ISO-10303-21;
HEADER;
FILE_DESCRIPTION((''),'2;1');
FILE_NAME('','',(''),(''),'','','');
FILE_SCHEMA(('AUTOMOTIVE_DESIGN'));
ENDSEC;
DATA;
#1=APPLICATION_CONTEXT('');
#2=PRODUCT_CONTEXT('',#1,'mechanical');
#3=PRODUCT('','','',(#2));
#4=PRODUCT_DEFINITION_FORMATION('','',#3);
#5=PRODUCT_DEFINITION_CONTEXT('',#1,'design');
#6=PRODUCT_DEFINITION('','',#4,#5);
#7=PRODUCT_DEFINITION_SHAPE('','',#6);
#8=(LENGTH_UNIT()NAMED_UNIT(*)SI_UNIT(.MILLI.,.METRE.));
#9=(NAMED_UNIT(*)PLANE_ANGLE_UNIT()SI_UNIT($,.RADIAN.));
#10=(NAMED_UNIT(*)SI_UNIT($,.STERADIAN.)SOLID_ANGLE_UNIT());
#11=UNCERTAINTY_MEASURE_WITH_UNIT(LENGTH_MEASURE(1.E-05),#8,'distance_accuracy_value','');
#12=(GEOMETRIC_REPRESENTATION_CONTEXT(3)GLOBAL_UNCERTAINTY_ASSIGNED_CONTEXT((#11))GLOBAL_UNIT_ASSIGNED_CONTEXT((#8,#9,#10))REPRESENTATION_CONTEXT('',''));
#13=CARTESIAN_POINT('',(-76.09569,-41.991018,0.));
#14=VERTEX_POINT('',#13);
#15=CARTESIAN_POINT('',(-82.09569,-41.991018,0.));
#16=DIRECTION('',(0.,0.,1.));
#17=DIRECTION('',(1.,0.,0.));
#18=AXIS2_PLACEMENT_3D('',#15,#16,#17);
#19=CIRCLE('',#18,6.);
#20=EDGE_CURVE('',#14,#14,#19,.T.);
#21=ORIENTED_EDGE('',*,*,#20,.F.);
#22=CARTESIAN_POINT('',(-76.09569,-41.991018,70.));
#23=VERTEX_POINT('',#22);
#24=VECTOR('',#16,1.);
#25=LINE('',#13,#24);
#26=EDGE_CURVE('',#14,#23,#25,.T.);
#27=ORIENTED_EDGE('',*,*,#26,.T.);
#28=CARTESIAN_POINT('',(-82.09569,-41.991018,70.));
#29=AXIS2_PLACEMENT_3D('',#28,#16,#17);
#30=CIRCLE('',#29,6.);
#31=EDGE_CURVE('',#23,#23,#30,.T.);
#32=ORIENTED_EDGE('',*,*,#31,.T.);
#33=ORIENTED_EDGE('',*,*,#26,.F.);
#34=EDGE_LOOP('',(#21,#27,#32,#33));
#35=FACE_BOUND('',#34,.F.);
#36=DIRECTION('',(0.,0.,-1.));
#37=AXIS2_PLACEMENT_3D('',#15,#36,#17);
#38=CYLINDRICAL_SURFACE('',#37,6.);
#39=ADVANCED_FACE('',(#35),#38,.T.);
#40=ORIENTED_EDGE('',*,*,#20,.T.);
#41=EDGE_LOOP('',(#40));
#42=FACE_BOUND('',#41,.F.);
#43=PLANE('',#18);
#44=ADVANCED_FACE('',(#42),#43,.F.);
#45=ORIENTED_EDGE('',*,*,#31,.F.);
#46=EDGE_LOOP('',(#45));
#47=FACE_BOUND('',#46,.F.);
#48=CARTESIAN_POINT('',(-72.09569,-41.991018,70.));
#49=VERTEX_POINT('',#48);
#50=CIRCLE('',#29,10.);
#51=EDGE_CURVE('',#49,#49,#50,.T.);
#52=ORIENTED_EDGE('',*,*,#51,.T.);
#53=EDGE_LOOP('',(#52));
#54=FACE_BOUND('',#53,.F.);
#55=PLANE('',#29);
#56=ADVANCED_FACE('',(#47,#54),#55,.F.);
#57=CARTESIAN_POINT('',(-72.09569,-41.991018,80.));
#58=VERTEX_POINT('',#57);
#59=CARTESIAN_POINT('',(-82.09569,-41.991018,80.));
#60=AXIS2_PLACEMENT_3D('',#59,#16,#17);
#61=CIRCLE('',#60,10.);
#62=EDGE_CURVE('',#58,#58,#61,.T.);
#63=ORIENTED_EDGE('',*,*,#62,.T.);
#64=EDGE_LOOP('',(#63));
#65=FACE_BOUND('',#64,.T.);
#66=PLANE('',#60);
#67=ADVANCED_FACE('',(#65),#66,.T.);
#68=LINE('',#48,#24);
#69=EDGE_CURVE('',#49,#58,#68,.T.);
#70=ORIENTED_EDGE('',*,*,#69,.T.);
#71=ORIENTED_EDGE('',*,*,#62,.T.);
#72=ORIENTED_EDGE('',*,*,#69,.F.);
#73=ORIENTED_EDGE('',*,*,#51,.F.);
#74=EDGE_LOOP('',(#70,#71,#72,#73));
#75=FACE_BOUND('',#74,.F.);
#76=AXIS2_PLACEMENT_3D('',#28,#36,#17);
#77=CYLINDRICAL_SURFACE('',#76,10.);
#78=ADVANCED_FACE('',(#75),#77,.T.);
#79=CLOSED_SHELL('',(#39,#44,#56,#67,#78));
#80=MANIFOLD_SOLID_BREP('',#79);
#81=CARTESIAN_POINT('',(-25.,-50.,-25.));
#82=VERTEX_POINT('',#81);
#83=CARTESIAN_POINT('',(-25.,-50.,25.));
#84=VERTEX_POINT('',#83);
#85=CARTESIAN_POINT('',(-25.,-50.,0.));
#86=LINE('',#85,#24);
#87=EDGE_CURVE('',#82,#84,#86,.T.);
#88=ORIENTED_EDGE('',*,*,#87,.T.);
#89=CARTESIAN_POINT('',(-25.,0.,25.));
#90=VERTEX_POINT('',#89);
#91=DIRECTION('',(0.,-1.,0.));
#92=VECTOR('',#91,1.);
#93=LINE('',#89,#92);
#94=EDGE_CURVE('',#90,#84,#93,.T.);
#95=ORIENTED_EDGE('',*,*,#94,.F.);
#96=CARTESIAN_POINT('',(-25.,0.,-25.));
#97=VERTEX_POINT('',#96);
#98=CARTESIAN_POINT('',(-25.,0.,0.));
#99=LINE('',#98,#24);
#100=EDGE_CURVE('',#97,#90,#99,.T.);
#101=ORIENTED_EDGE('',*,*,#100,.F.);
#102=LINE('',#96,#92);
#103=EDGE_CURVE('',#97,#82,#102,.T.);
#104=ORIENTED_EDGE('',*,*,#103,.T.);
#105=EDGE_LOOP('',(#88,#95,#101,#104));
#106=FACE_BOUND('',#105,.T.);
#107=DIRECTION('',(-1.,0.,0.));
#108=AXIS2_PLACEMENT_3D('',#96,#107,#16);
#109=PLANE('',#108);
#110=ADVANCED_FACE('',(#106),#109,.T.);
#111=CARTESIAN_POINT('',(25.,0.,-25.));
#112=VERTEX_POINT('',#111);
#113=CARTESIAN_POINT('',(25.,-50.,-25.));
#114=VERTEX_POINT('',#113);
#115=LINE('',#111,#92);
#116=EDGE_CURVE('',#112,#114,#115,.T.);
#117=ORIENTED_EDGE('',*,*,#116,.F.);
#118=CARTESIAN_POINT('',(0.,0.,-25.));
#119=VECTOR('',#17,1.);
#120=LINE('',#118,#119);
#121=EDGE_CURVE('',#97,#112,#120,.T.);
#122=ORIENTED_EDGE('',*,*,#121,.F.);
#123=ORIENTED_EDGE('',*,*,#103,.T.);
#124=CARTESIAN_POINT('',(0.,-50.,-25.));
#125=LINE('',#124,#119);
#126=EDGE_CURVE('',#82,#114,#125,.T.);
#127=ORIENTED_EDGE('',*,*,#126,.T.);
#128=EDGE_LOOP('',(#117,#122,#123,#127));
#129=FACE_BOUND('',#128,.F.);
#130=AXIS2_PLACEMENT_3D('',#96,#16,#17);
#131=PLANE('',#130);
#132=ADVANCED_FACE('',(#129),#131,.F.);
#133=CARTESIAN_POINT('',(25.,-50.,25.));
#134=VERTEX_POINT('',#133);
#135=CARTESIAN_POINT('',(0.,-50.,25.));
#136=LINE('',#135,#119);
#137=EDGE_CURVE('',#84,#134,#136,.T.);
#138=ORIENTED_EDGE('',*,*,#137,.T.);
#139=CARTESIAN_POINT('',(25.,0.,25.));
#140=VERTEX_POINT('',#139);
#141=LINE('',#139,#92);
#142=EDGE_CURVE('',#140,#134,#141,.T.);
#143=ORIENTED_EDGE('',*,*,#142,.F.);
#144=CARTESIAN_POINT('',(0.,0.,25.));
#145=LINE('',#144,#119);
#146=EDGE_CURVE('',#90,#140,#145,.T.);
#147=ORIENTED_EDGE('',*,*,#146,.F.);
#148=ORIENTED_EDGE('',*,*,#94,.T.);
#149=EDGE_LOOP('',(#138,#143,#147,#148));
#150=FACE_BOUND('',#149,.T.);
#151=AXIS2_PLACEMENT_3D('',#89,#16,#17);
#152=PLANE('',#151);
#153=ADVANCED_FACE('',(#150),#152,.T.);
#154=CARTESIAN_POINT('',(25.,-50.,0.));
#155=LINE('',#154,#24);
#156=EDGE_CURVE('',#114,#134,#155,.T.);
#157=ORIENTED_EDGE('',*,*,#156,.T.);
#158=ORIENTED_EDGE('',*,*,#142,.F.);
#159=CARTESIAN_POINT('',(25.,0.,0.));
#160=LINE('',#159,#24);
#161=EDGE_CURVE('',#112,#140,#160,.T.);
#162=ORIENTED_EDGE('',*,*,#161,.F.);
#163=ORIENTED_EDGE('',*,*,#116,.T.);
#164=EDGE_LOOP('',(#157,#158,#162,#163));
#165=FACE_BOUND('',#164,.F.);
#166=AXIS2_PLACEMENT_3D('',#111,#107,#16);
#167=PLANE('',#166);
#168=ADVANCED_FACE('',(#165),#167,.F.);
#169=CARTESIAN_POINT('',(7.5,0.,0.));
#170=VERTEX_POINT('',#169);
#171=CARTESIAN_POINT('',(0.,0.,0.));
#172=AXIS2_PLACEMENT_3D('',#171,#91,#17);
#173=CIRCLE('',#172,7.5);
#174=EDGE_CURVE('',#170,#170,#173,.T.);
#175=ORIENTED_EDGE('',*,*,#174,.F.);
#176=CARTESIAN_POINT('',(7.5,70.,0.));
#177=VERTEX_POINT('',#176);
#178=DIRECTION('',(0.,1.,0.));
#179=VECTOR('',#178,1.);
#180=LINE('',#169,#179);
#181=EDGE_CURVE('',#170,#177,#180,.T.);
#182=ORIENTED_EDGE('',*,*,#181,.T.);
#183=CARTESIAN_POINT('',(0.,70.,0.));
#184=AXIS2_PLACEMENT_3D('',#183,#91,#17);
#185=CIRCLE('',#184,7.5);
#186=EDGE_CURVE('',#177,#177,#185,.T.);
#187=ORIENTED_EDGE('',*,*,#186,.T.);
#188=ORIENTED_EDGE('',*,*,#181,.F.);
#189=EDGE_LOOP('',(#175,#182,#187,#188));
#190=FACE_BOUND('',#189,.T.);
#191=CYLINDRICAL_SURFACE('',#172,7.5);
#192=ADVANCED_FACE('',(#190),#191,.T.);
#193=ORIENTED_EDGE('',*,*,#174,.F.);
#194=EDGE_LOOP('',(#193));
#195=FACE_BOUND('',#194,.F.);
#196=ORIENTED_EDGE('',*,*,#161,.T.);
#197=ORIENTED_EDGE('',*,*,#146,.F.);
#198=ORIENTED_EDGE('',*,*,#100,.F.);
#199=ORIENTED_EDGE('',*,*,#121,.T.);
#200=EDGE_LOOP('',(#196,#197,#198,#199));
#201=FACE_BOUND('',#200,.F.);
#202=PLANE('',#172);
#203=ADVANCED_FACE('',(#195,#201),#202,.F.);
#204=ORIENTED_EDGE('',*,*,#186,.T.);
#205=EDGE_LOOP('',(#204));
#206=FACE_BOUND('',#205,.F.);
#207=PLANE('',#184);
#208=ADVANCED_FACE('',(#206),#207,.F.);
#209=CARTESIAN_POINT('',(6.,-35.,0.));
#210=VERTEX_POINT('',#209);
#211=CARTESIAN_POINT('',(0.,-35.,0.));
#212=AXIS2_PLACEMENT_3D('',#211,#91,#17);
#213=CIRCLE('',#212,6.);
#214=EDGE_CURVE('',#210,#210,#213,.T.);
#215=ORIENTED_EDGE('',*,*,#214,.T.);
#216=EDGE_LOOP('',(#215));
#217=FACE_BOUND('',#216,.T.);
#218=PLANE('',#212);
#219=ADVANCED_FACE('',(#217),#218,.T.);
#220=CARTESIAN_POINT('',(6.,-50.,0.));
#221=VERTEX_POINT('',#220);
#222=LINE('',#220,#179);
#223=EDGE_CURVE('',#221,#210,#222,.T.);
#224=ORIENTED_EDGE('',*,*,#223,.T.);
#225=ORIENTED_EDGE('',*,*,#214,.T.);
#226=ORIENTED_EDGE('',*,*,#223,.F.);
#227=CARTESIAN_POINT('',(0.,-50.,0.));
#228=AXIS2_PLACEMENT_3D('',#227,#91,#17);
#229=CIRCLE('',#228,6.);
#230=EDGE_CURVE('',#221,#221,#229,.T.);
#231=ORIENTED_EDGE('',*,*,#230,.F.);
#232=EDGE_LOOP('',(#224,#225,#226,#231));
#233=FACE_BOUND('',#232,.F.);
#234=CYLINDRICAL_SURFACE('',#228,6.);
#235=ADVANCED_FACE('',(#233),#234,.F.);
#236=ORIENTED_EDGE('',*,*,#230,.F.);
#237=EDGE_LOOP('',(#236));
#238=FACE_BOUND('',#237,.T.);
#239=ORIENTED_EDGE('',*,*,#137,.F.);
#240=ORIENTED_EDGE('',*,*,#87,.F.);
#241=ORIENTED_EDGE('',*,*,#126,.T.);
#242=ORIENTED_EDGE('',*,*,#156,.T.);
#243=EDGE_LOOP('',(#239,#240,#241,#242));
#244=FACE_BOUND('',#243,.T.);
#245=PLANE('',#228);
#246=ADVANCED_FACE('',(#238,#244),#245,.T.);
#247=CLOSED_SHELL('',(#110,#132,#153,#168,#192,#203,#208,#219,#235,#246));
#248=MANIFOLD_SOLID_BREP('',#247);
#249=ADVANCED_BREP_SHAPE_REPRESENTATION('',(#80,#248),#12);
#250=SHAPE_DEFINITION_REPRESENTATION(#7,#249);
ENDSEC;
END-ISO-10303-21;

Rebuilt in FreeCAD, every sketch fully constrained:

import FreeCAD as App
import Part
import Sketcher
from FreeCAD import Vector

doc = App.newDocument("Part")
body = doc.addObject("PartDesign::Body", "Body")

# Sketch on XZ plane
sketch1 = body.newObject("Sketcher::SketchObject", "Sketch")
sketch1.AttachmentSupport = (doc.getObject("XZ_Plane"), [""])
sketch1.MapMode = "FlatFace"
sketch1.addGeometry(Part.LineSegment(Vector(-25, 25, 0), Vector(-25, -25, 0)), False)
sketch1.addGeometry(Part.LineSegment(Vector(-25, -25, 0), Vector(25, -25, 0)), False)
sketch1.addGeometry(Part.LineSegment(Vector(25, -25, 0), Vector(25, 25, 0)), False)
sketch1.addGeometry(Part.LineSegment(Vector(25, 25, 0), Vector(-25, 25, 0)), False)
sketch1.addConstraint(Sketcher.Constraint("Coincident", 0, 2, 1, 1))
sketch1.addConstraint(Sketcher.Constraint("Coincident", 1, 2, 2, 1))
sketch1.addConstraint(Sketcher.Constraint("Coincident", 2, 2, 3, 1))
sketch1.addConstraint(Sketcher.Constraint("Coincident", 3, 2, 0, 1))
sketch1.addConstraint(Sketcher.Constraint("Vertical", 0))
sketch1.addConstraint(Sketcher.Constraint("Horizontal", 1))
sketch1.addConstraint(Sketcher.Constraint("Vertical", 2))
sketch1.addConstraint(Sketcher.Constraint("Horizontal", 3))
sketch1.addConstraint(Sketcher.Constraint("Symmetric", 0, 2, 2, 2, -1, 1))
sketch1.addConstraint(Sketcher.Constraint("Equal", 3, 0))
sketch1.addConstraint(Sketcher.Constraint("DistanceX", 1, 1, 1, 2, 50.0))
pad1 = body.newObject("PartDesign::Pad", "Pad")
pad1.Profile = sketch1
pad1.Length = 50

# Sketch on XZ plane
sketch2 = body.newObject("Sketcher::SketchObject", "Sketch001")
sketch2.AttachmentSupport = (doc.getObject("XZ_Plane"), [""])
sketch2.MapMode = "FlatFace"
sketch2.addGeometry(Part.Circle(Vector(0, 0, 0), Vector(0, 0, 1), 8), False)
sketch2.addConstraint(Sketcher.Constraint("Coincident", 0, 3, -1, 1))
sketch2.addConstraint(Sketcher.Constraint("Diameter", 0, 15.0))
pad2 = body.newObject("PartDesign::Pad", "Pad001")
pad2.Profile = sketch2
pad2.Length = 70
pad2.Reversed = True

# Sketch on XZ plane
sketch3 = body.newObject("Sketcher::SketchObject", "Sketch002")
sketch3.AttachmentSupport = (doc.getObject("XZ_Plane"), [""])
sketch3.MapMode = "FlatFace"
sketch3.AttachmentOffset = App.Placement(Vector(0, 0, 50), App.Rotation())
sketch3.addGeometry(Part.Circle(Vector(0, 0, 0), Vector(0, 0, 1), 6), False)
sketch3.addConstraint(Sketcher.Constraint("Coincident", 0, 3, -1, 1))
sketch3.addConstraint(Sketcher.Constraint("Diameter", 0, 12.0))
pocket1 = body.newObject("PartDesign::Pocket", "Pocket")
pocket1.Profile = sketch3
pocket1.Length = 15
body2 = doc.addObject("PartDesign::Body", "Body001")

# Sketch on XY plane
sketch4 = body2.newObject("Sketcher::SketchObject", "Sketch003")
sketch4.AttachmentSupport = (doc.getObject("XY_Plane001"), [""])
sketch4.MapMode = "FlatFace"
sketch4.addGeometry(Part.Circle(Vector(-82, -42, 0), Vector(0, 0, 1), 6), False)
sketch4.addConstraint(Sketcher.Constraint("Diameter", 0, 12.0))
sketch4.addConstraint(Sketcher.Constraint("DistanceX", 0, 3, -1, 1, 82.09569))
sketch4.addConstraint(Sketcher.Constraint("DistanceY", 0, 3, -1, 1, 41.991018))
pad3 = body2.newObject("PartDesign::Pad", "Pad002")
pad3.Profile = sketch4
pad3.Length = 70

# Sketch on XY plane
sketch5 = body2.newObject("Sketcher::SketchObject", "Sketch004")
sketch5.AttachmentSupport = (doc.getObject("XY_Plane001"), [""])
sketch5.MapMode = "FlatFace"
sketch5.AttachmentOffset = App.Placement(Vector(0, 0, 70), App.Rotation())
sketch5.addGeometry(Part.Circle(Vector(-82, -42, 0), Vector(0, 0, 1), 10), False)
sketch5.addConstraint(Sketcher.Constraint("Diameter", 0, 20.0))
sketch5.addConstraint(Sketcher.Constraint("DistanceX", 0, 3, -1, 1, 82.09569))
sketch5.addConstraint(Sketcher.Constraint("DistanceY", 0, 3, -1, 1, 41.991018))
pad4 = body2.newObject("PartDesign::Pad", "Pad003")
pad4.Profile = sketch5
pad4.Length = 10

doc.recompute()
